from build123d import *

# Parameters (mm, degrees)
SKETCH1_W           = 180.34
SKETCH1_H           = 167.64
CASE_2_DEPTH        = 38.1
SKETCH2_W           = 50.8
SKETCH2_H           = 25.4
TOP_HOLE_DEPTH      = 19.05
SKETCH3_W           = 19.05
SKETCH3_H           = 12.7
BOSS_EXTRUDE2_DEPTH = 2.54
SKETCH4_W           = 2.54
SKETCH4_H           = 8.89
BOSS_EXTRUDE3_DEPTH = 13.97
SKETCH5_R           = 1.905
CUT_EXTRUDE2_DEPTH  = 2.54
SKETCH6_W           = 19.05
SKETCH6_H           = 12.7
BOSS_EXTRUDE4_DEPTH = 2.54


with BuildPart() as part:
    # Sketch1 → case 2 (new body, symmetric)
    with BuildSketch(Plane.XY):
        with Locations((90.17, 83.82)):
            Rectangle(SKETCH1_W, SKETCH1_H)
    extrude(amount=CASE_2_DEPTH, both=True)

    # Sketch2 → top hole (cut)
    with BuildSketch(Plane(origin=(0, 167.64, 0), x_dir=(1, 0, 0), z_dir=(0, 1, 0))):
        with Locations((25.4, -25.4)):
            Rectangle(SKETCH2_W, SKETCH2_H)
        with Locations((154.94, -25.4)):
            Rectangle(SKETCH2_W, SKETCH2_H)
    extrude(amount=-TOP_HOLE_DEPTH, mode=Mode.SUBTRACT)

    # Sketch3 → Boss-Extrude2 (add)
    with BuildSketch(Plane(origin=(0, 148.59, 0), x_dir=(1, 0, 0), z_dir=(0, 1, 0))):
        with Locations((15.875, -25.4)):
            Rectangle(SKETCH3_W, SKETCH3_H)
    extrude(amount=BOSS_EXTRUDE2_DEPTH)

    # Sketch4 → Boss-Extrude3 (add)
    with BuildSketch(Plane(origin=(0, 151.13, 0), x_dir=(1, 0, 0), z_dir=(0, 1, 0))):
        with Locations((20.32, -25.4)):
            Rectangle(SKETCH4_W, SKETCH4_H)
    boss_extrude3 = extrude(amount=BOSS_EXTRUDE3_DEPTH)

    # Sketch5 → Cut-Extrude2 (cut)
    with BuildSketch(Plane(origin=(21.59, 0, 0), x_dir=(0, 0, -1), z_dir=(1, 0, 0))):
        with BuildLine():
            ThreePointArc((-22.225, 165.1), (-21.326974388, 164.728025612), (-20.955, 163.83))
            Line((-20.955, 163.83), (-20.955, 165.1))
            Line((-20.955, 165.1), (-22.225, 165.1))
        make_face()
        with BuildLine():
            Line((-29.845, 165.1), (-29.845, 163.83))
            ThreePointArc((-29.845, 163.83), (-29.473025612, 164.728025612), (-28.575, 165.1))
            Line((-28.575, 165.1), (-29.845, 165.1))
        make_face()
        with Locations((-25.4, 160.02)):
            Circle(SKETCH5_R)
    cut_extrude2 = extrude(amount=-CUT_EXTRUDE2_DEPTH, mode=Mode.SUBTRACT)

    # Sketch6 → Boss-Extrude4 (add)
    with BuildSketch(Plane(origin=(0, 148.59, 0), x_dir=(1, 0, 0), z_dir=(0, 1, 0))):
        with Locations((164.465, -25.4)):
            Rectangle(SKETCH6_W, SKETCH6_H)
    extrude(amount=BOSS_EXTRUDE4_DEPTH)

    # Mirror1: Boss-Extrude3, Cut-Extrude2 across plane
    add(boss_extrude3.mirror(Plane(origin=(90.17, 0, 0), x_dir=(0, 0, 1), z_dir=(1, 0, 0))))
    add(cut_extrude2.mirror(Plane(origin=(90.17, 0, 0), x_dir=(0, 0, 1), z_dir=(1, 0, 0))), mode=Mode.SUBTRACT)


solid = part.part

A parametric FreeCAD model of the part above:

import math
import FreeCAD as App
import Part
import Sketcher
from FreeCAD import Vector
Q = App.Units.Quantity

doc = App.newDocument("Part")
params = doc.addObject("Spreadsheet::Sheet", "Params")
for row, (alias, value) in enumerate([
    ("sketch1_width", "7.1 in"),
    ("sketch1_height", "6.6 in"),
    ("pad1_length", "3 in"),
    ("sketch2_width", "2 in"),
    ("sketch2_height", "1 in"),
    ("pocket1_length", "0.75 in"),
    ("sketch3_height", "0.5 in"),
    ("sketch3_width", "0.75 in"),
    ("pad2_length", "0.1 in"),
    ("sketch4_width", "0.1 in"),
    ("sketch4_height", "0.35 in"),
    ("pad3_length", "0.55 in"),
    ("sketch5_diameter", "0.15 in"),
    ("sketch5_radius", "0.05 in"),
    ("pocket2_length", "0.1 in"),
    ("sketch6_height", "0.5 in"),
    ("sketch6_width", "0.75 in"),
    ("pad4_length", "0.1 in"),
], start=1):
    params.set(f"A{row}", alias)
    params.set(f"B{row}", "=" + value)
    params.setAlias(f"B{row}", alias)

body = doc.addObject("PartDesign::Body", "Body")

sketch1 = doc.addObject("Sketcher::SketchObject", "Sketch")
body.addObject(sketch1)
sketch1.AttachmentSupport = (doc.XY_Plane, [""])
sketch1.MapMode = "FlatFace"
sketch1.addGeometry([
    Part.LineSegment(Vector(0, 168, 0), Vector(0, 0, 0)),
    Part.LineSegment(Vector(0, 0, 0), Vector(180, 0, 0)),
    Part.LineSegment(Vector(180, 0, 0), Vector(180, 168, 0)),
    Part.LineSegment(Vector(180, 168, 0), Vector(0, 168, 0)),
], False)
sketch1.addConstraint([
    Sketcher.Constraint("Coincident", 0, 2, 1, 1),
    Sketcher.Constraint("Coincident", 1, 2, 2, 1),
    Sketcher.Constraint("Coincident", 2, 2, 3, 1),
    Sketcher.Constraint("Coincident", 3, 2, 0, 1),
    Sketcher.Constraint("Vertical", 0),
    Sketcher.Constraint("Horizontal", 1),
    Sketcher.Constraint("Vertical", 2),
    Sketcher.Constraint("Horizontal", 3),
    Sketcher.Constraint("Coincident", 0, 2, -1, 1),
    Sketcher.Constraint("DistanceX", 1, 1, 1, 2, Q("7.1 in")),
    Sketcher.Constraint("DistanceY", 0, 2, 0, 1, Q("6.6 in")),
])
sketch1.setExpression("Constraints[9]", "Params.sketch1_width")
sketch1.setExpression("Constraints[10]", "Params.sketch1_height")
pad1 = doc.addObject("PartDesign::Pad", "Pad")
body.addObject(pad1)
pad1.Profile = sketch1
pad1.setExpression("Length", "Params.pad1_length")
pad1.Midplane = True

sketch2 = doc.addObject("Sketcher::SketchObject", "Sketch001")
body.addObject(sketch2)
sketch2.AttachmentSupport = (doc.XZ_Plane, [""])
sketch2.MapMode = "FlatFace"
sketch2.AttachmentOffset = App.Placement(Vector(0, 0, -6.6 * 25.4), App.Rotation())
sketch2.addGeometry([
    Part.LineSegment(Vector(0, 13, 0), Vector(0, 38, 0)),
    Part.LineSegment(Vector(0, 38, 0), Vector(51, 38, 0)),
    Part.LineSegment(Vector(51, 38, 0), Vector(51, 13, 0)),
    Part.LineSegment(Vector(51, 13, 0), Vector(0, 13, 0)),
    Part.LineSegment(Vector(130, 13, 0), Vector(130, 38, 0)),
    Part.LineSegment(Vector(130, 38, 0), Vector(180, 38, 0)),
    Part.LineSegment(Vector(180, 38, 0), Vector(180, 13, 0)),
    Part.LineSegment(Vector(180, 13, 0), Vector(130, 13, 0)),
], False)
sketch2.addConstraint([
    Sketcher.Constraint("Coincident", 0, 2, 1, 1),
    Sketcher.Constraint("Coincident", 1, 2, 2, 1),
    Sketcher.Constraint("Coincident", 2, 2, 3, 1),
    Sketcher.Constraint("Coincident", 3, 2, 0, 1),
    Sketcher.Constraint("Coincident", 4, 2, 5, 1),
    Sketcher.Constraint("Coincident", 5, 2, 6, 1),
    Sketcher.Constraint("Coincident", 6, 2, 7, 1),
    Sketcher.Constraint("Coincident", 7, 2, 4, 1),
    Sketcher.Constraint("Vertical", 0),
    Sketcher.Constraint("Horizontal", 1),
    Sketcher.Constraint("Vertical", 2),
    Sketcher.Constraint("Horizontal", 3),
    Sketcher.Constraint("Vertical", 4),
    Sketcher.Constraint("Horizontal", 5),
    Sketcher.Constraint("Vertical", 6),
    Sketcher.Constraint("Horizontal", 7),
    Sketcher.Constraint("PointOnObject", 0, 2, -2),
    Sketcher.Constraint("Horizontal", 1, 2, 4, 2),
    Sketcher.Constraint("Horizontal", 3, 2, 6, 2),
    Sketcher.Constraint("Equal", 3, 5),
    Sketcher.Constraint("DistanceX", 1, 1, 1, 2, Q("2 in")),
    Sketcher.Constraint("DistanceY", 0, 1, 0, 2, Q("1 in")),
    Sketcher.Constraint("DistanceY", -1, 1, 0, 2, Q("1.5 in")),
    Sketcher.Constraint("DistanceX", -1, 1, 4, 2, Q("5.1 in")),
])
sketch2.setExpression("Constraints[20]", "Params.sketch2_width")
sketch2.setExpression("Constraints[21]", "Params.sketch2_height")
pocket1 = doc.addObject("PartDesign::Pocket", "Pocket")
body.addObject(pocket1)
pocket1.Profile = sketch2
pocket1.setExpression("Length", "Params.pocket1_length")
pocket1.Reversed = True

sketch3 = doc.addObject("Sketcher::SketchObject", "Sketch002")
body.addObject(sketch3)
sketch3.AttachmentSupport = (doc.XZ_Plane, [""])
sketch3.MapMode = "FlatFace"
sketch3.AttachmentOffset = App.Placement(Vector(0, 0, -5.85 * 25.4), App.Rotation())
sketch3.addGeometry([
    Part.LineSegment(Vector(6, 19, 0), Vector(6, 32, 0)),
    Part.LineSegment(Vector(6, 32, 0), Vector(25, 32, 0)),
    Part.LineSegment(Vector(25, 32, 0), Vector(25, 19, 0)),
    Part.LineSegment(Vector(25, 19, 0), Vector(6, 19, 0)),
], False)
sketch3.addConstraint([
    Sketcher.Constraint("Coincident", 0, 2, 1, 1),
    Sketcher.Constraint("Coincident", 1, 2, 2, 1),
    Sketcher.Constraint("Coincident", 2, 2, 3, 1),
    Sketcher.Constraint("Coincident", 3, 2, 0, 1),
    Sketcher.Constraint("Vertical", 0),
    Sketcher.Constraint("Horizontal", 1),
    Sketcher.Constraint("Vertical", 2),
    Sketcher.Constraint("Horizontal", 3),
    Sketcher.Constraint("DistanceY", 0, 1, 0, 2, Q("0.5 in")),
    Sketcher.Constraint("DistanceX", -1, 1, 1, 2, Q("1 in")),
    Sketcher.Constraint("DistanceX", 1, 1, 1, 2, Q("0.75 in")),
    Sketcher.Constraint("DistanceY", -1, 1, 0, 2, Q("1.25 in")),
])
sketch3.setExpression("Constraints[8]", "Params.sketch3_height")
sketch3.setExpression("Constraints[10]", "Params.sketch3_width")
pad2 = doc.addObject("PartDesign::Pad", "Pad001")
body.addObject(pad2)
pad2.Profile = sketch3
pad2.setExpression("Length", "Params.pad2_length")
pad2.Reversed = True

sketch4 = doc.addObject("Sketcher::SketchObject", "Sketch003")
body.addObject(sketch4)
sketch4.AttachmentSupport = (doc.XZ_Plane, [""])
sketch4.MapMode = "FlatFace"
sketch4.AttachmentOffset = App.Placement(Vector(0, 0, -5.95 * 25.4), App.Rotation())
sketch4.addGeometry([
    Part.LineSegment(Vector(19.1, 21, 0), Vector(19.1, 29.8, 0)),
    Part.LineSegment(Vector(19.1, 29.8, 0), Vector(21.6, 29.8, 0)),
    Part.LineSegment(Vector(21.6, 29.8, 0), Vector(21.6, 21, 0)),
    Part.LineSegment(Vector(21.6, 21, 0), Vector(19.1, 21, 0)),
], False)
sketch4.addConstraint([
    Sketcher.Constraint("Coincident", 0, 2, 1, 1),
    Sketcher.Constraint("Coincident", 1, 2, 2, 1),
    Sketcher.Constraint("Coincident", 2, 2, 3, 1),
    Sketcher.Constraint("Coincident", 3, 2, 0, 1),
    Sketcher.Constraint("Vertical", 0),
    Sketcher.Constraint("Horizontal", 1),
    Sketcher.Constraint("Vertical", 2),
    Sketcher.Constraint("Horizontal", 3),
    Sketcher.Constraint("DistanceX", 1, 1, 1, 2, Q("0.1 in")),
    Sketcher.Constraint("DistanceY", 0, 1, 0, 2, Q("0.35 in")),
    Sketcher.Constraint("DistanceX", -1, 1, 0, 2, Q("0.75 in")),
    Sketcher.Constraint("DistanceY", -1, 1, 0, 2, Q("1.175 in")),
])
sketch4.setExpression("Constraints[8]", "Params.sketch4_width")
sketch4.setExpression("Constraints[9]", "Params.sketch4_height")
pad3 = doc.addObject("PartDesign::Pad", "Pad002")
body.addObject(pad3)
pad3.Profile = sketch4
pad3.setExpression("Length", "Params.pad3_length")
pad3.Reversed = True

sketch5 = doc.addObject("Sketcher::SketchObject", "Sketch004")
body.addObject(sketch5)
sketch5.AttachmentSupport = (doc.YZ_Plane, [""])
sketch5.MapMode = "FlatFace"
sketch5.AttachmentOffset = App.Placement(Vector(0, 0, 0.85 * 25.4), App.Rotation())
sketch5.addGeometry([
    Part.ArcOfCircle(Part.Circle(Vector(163.8, 22.2, 0), Vector(0, 0, 1), 1.3), math.radians(-90), math.radians(0)),
    Part.LineSegment(Vector(163.8, 21, 0), Vector(165.1, 21, 0)),
    Part.LineSegment(Vector(165.1, 21, 0), Vector(165.1, 22.2, 0)),
    Part.LineSegment(Vector(165.1, 29.8, 0), Vector(163.8, 29.8, 0)),
    Part.ArcOfCircle(Part.Circle(Vector(163.8, 28.6, 0), Vector(0, 0, 1), 1.3), math.radians(0), math.radians(90)),
    Part.LineSegment(Vector(165.1, 28.6, 0), Vector(165.1, 29.8, 0)),
    Part.Circle(Vector(160, 25.4, 0), Vector(0, 0, 1), 1.9),
], False)
sketch5.addConstraint([
    Sketcher.Constraint("Tangent", 0, 1, 1, 1),
    Sketcher.Constraint("Coincident", 1, 2, 2, 1),
    Sketcher.Constraint("Tangent", 2, 2, 0, 2),
    Sketcher.Constraint("Tangent", 3, 2, 4, 2),
    Sketcher.Constraint("Tangent", 4, 1, 5, 1),
    Sketcher.Constraint("Coincident", 5, 2, 3, 1),
    Sketcher.Constraint("Horizontal", 1),
    Sketcher.Constraint("Vertical", 2),
    Sketcher.Constraint("Horizontal", 3),
    Sketcher.Constraint("Vertical", 5),
    Sketcher.Constraint("Equal", 0, 4),
    Sketcher.Constraint("Vertical", 0, 3, 4, 3),
    Sketcher.Constraint("Diameter", 6, Q("0.15 in")),
    Sketcher.Constraint("Radius", 0, Q("0.05 in")),
    Sketcher.Constraint("DistanceY", -1, 1, 6, 3, Q("1 in")),
    Sketcher.Constraint("DistanceX", -1, 1, 6, 3, Q("6.3 in")),
    Sketcher.Constraint("DistanceX", -1, 1, 1, 2, Q("6.5 in")),
    Sketcher.Constraint("DistanceY", 0, 1, 4, 3, Q("0.3 in")),
    Sketcher.Constraint("DistanceY", -1, 1, 0, 3, Q("0.875 in")),
])
sketch5.setExpression("Constraints[12]", "Params.sketch5_diameter")
sketch5.setExpression("Constraints[13]", "Params.sketch5_radius")
pocket2 = doc.addObject("PartDesign::Pocket", "Pocket001")
body.addObject(pocket2)
pocket2.Profile = sketch5
pocket2.setExpression("Length", "Params.pocket2_length")

sketch6 = doc.addObject("Sketcher::SketchObject", "Sketch005")
body.addObject(sketch6)
sketch6.AttachmentSupport = (doc.XZ_Plane, [""])
sketch6.MapMode = "FlatFace"
sketch6.AttachmentOffset = App.Placement(Vector(0, 0, -5.85 * 25.4), App.Rotation())
sketch6.addGeometry([
    Part.LineSegment(Vector(155, 19, 0), Vector(155, 32, 0)),
    Part.LineSegment(Vector(155, 32, 0), Vector(174, 32, 0)),
    Part.LineSegment(Vector(174, 32, 0), Vector(174, 19, 0)),
    Part.LineSegment(Vector(174, 19, 0), Vector(155, 19, 0)),
], False)
sketch6.addConstraint([
    Sketcher.Constraint("Coincident", 0, 2, 1, 1),
    Sketcher.Constraint("Coincident", 1, 2, 2, 1),
    Sketcher.Constraint("Coincident", 2, 2, 3, 1),
    Sketcher.Constraint("Coincident", 3, 2, 0, 1),
    Sketcher.Constraint("Vertical", 0),
    Sketcher.Constraint("Horizontal", 1),
    Sketcher.Constraint("Vertical", 2),
    Sketcher.Constraint("Horizontal", 3),
    Sketcher.Constraint("DistanceY", 0, 1, 0, 2, Q("0.5 in")),
    Sketcher.Constraint("DistanceX", 1, 1, 1, 2, Q("0.75 in")),
    Sketcher.Constraint("DistanceX", -1, 1, 0, 2, Q("6.1 in")),
    Sketcher.Constraint("DistanceY", -1, 1, 0, 2, Q("1.25 in")),
])
sketch6.setExpression("Constraints[8]", "Params.sketch6_height")
sketch6.setExpression("Constraints[9]", "Params.sketch6_width")
pad4 = doc.addObject("PartDesign::Pad", "Pad003")
body.addObject(pad4)
pad4.Profile = sketch6
pad4.setExpression("Length", "Params.pad4_length")
pad4.Reversed = True
doc.recompute()

datumplane = doc.addObject("PartDesign::Plane", "DatumPlane")
body.addObject(datumplane)
datumplane.AttachmentSupport = (doc.YZ_Plane, [""])
datumplane.MapMode = "FlatFace"
datumplane.AttachmentOffset = App.Placement(Vector(0, 0, 3.55 * 25.4), App.Rotation())
mirrored = doc.addObject("PartDesign::Mirrored", "Mirrored")
body.addObject(mirrored)
mirrored.Originals = [pad3, pocket2]
mirrored.MirrorPlane = (datumplane, [""])
body.Tip = mirrored

doc.recompute()
